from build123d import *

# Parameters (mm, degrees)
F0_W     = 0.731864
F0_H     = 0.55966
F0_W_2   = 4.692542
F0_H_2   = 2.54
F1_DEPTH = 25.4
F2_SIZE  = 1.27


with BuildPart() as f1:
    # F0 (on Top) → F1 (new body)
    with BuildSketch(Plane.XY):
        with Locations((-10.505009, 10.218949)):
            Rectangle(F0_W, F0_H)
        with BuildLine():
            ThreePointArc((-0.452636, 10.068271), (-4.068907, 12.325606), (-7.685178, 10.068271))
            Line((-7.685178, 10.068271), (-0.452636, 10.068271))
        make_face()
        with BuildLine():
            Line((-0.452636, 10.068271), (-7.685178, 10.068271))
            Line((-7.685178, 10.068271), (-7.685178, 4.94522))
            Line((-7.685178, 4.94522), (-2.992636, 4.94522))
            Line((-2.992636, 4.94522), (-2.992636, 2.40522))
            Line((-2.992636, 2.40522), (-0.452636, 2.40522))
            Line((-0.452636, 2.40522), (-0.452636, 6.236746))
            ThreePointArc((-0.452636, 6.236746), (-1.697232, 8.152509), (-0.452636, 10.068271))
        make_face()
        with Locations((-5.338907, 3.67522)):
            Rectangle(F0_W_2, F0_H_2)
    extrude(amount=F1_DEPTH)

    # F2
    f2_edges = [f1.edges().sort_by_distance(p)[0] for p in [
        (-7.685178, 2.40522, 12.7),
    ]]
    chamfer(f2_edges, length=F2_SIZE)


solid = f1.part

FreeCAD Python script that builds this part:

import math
import FreeCAD as App
import Part
import Sketcher
from FreeCAD import Vector
Q = App.Units.Quantity


def edges_at(feature, points):
    """Names of the edges that pass closest to the given points."""
    edges = feature.Shape.Edges
    near = lambda p: min(range(len(edges)), key=lambda i: edges[i].distToShape(Part.Vertex(*p))[0])
    return sorted({f"Edge{near(p) + 1}" for p in points})


def add_polygon(sketch, points):
    """Adds a closed chain of lines whose ends are joined by coincident constraints."""
    first, n = sketch.GeometryCount, len(points)
    for a, b in zip(points, points[1:] + points[:1]):
        sketch.addGeometry(Part.LineSegment(App.Vector(*a, 0), App.Vector(*b, 0)), False)
    for i in range(n):
        sketch.addConstraint(Sketcher.Constraint("Coincident", first + i, 2, first + (i + 1) % n, 1))

doc = App.newDocument("Part")
params = doc.addObject("Spreadsheet::Sheet", "Params")
for row, (alias, value) in enumerate([
    ("pad1_length", "1 in"),
    ("chamfer_size", "0.05 in"),
], start=1):
    params.set(f"A{row}", alias)
    params.set(f"B{row}", "=" + value)
    params.setAlias(f"B{row}", alias)

body = doc.addObject("PartDesign::Body", "Body")
body.AllowCompound = True

sketch1 = body.newObject("Sketcher::SketchObject", "Sketch")
sketch1.AttachmentSupport = (doc.getObject("XY_Plane"), [""])
sketch1.MapMode = "FlatFace"
add_polygon(sketch1, [(-10.870941, 10.498779), (-10.870941, 9.939119), (-10.139077, 9.939119), (-10.139077, 10.498779)])
sketch1.addGeometry(Part.ArcOfCircle(Part.Circle(Vector(-4.068907, 8.300289, 0), Vector(0, 0, 1), 4.025317), math.radians(26.053842), math.radians(153.946158)), False)
sketch1.addGeometry(Part.LineSegment(Vector(-7.685178, 10.068271, 0), Vector(-7.685178, 2.40522, 0)), False)
sketch1.addGeometry(Part.LineSegment(Vector(-7.685178, 2.40522, 0), Vector(-0.452636, 2.40522, 0)), False)
sketch1.addGeometry(Part.LineSegment(Vector(-0.452636, 2.40522, 0), Vector(-0.452636, 6.236746, 0)), False)
sketch1.addGeometry(Part.ArcOfCircle(Part.Circle(Vector(0.399499, 8.152508, 0), Vector(0, 0, 1), 2.096731), math.radians(113.979585), math.radians(246.020415)), False)
sketch1.addConstraint([
    Sketcher.Constraint("Coincident", 4, 2, 5, 1),
    Sketcher.Constraint("Coincident", 5, 2, 6, 1),
    Sketcher.Constraint("Coincident", 6, 2, 7, 1),
    Sketcher.Constraint("Coincident", 7, 2, 8, 2),
    Sketcher.Constraint("Coincident", 8, 1, 4, 1),
    Sketcher.Constraint("Vertical", 0),
    Sketcher.Constraint("Horizontal", 1),
    Sketcher.Constraint("Vertical", 2),
    Sketcher.Constraint("Horizontal", 3),
    Sketcher.Constraint("Vertical", 5),
    Sketcher.Constraint("Horizontal", 6),
    Sketcher.Constraint("Vertical", 7),
    Sketcher.Constraint("Horizontal", 4, 2, 8, 1),
    Sketcher.Constraint("Vertical", 7, 2, 8, 1),
    Sketcher.Constraint("Radius", 8, Q("2.096731 mm")),
    Sketcher.Constraint("Radius", 4, Q("4.025317 mm")),
    Sketcher.Constraint("DistanceX", 6, 1, 6, 2, Q("7.232542 mm")),
    Sketcher.Constraint("DistanceY", 0, 2, 0, 1, Q("0.55966 mm")),
    Sketcher.Constraint("DistanceY", 5, 2, 5, 1, Q("7.663051 mm")),
    Sketcher.Constraint("DistanceX", -1, 1, 8, 3, Q("0.399499 mm")),
    Sketcher.Constraint("DistanceX", 1, 2, 4, 2, Q("2.453899 mm")),
    Sketcher.Constraint("DistanceY", 5, 2, 1, 2, Q("7.533899 mm")),
    Sketcher.Constraint("DistanceX", 1, 1, 1, 2, Q("0.731864 mm")),
    Sketcher.Constraint("DistanceY", 7, 1, 7, 2, Q("3.831526 mm")),
    Sketcher.Constraint("DistanceY", -1, 1, 4, 3, Q("8.300289 mm")),
])
pad1 = body.newObject("PartDesign::Pad", "Pad")
pad1.Profile = sketch1
pad1.setExpression("Length", "Params.pad1_length")
doc.recompute()

chamfer = body.newObject("PartDesign::Chamfer", "Chamfer")
chamfer.Base = (pad1, edges_at(pad1, [(-7.685, 2.405, 12.7)]))
chamfer.setExpression("Size", "Params.chamfer_size")

doc.recompute()
